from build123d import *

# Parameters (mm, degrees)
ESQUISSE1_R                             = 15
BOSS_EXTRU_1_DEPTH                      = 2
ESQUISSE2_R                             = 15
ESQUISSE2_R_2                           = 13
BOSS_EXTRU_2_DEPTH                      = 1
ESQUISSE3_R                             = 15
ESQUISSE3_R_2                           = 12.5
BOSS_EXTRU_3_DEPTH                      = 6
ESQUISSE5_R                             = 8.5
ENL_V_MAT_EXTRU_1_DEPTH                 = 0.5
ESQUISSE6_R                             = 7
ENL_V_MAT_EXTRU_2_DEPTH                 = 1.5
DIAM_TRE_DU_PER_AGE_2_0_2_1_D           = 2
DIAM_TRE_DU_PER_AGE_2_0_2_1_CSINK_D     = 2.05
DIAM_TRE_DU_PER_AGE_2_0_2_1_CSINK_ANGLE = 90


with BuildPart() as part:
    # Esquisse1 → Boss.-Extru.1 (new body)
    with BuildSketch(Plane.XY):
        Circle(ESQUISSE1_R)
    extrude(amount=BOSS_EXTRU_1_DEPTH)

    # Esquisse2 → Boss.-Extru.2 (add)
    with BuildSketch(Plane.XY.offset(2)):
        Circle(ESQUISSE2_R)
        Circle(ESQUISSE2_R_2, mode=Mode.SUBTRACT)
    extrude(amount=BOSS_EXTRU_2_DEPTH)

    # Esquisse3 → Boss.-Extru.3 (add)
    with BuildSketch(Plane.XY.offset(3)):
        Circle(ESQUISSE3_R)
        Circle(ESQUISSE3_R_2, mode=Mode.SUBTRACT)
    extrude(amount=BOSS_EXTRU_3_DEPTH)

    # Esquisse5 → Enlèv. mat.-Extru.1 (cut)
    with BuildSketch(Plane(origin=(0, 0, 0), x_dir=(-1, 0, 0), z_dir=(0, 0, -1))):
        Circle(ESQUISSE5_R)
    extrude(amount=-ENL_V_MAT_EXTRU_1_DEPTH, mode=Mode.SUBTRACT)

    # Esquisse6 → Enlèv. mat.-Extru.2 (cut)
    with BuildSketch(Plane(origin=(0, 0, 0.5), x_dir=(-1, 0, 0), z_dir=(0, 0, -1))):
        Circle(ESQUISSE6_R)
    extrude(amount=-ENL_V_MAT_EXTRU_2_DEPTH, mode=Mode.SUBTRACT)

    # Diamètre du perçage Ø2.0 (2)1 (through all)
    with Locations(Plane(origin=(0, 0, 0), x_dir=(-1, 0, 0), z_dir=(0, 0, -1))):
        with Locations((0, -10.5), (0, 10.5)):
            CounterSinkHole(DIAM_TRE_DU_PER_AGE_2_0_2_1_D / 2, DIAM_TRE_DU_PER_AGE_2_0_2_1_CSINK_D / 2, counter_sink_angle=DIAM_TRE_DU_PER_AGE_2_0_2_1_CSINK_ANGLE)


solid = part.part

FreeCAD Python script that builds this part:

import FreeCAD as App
import Part
import Sketcher

V = App.Vector
Q = App.Units.Quantity

doc = App.newDocument("Part")
body = doc.addObject("PartDesign::Body", "Body")

sketch1 = doc.addObject("Sketcher::SketchObject", "Sketch")
body.addObject(sketch1)
sketch1.AttachmentSupport = (doc.XY_Plane, [""])
sketch1.MapMode = "FlatFace"
sketch1.addGeometry(Part.Circle(V(0, 0, 0), V(0, 0, 1), 15), False)
sketch1.addConstraint([
    Sketcher.Constraint("Coincident", 0, 3, -1, 1),
    Sketcher.Constraint("Diameter", 0, Q("30 mm")),
])
pad1 = doc.addObject("PartDesign::Pad", "Pad")
body.addObject(pad1)
pad1.Profile = sketch1
pad1.Length = 2

sketch2 = doc.addObject("Sketcher::SketchObject", "Sketch001")
body.addObject(sketch2)
sketch2.AttachmentSupport = (doc.XY_Plane, [""])
sketch2.MapMode = "FlatFace"
sketch2.AttachmentOffset = App.Placement(V(0, 0, 2), App.Rotation())
sketch2.addGeometry([
    Part.Circle(V(0, 0, 0), V(0, 0, 1), 15),
    Part.Circle(V(0, 0, 0), V(0, 0, 1), 13),
], False)
sketch2.addConstraint([
    Sketcher.Constraint("Coincident", 0, 3, -1, 1),
    Sketcher.Constraint("Coincident", 1, 3, -1, 1),
    Sketcher.Constraint("Diameter", 0, Q("30 mm")),
    Sketcher.Constraint("Diameter", 1, Q("26 mm")),
])
pad2 = doc.addObject("PartDesign::Pad", "Pad001")
body.addObject(pad2)
pad2.Profile = sketch2
pad2.Length = 1

sketch3 = doc.addObject("Sketcher::SketchObject", "Sketch002")
body.addObject(sketch3)
sketch3.AttachmentSupport = (doc.XY_Plane, [""])
sketch3.MapMode = "FlatFace"
sketch3.AttachmentOffset = App.Placement(V(0, 0, 3), App.Rotation())
sketch3.addGeometry([
    Part.Circle(V(0, 0, 0), V(0, 0, 1), 15),
    Part.Circle(V(0, 0, 0), V(0, 0, 1), 12),
], False)
sketch3.addConstraint([
    Sketcher.Constraint("Coincident", 0, 3, -1, 1),
    Sketcher.Constraint("Coincident", 1, 3, -1, 1),
    Sketcher.Constraint("Diameter", 0, Q("30 mm")),
    Sketcher.Constraint("Diameter", 1, Q("25 mm")),
])
pad3 = doc.addObject("PartDesign::Pad", "Pad002")
body.addObject(pad3)
pad3.Profile = sketch3
pad3.Length = 6

sketch4 = doc.addObject("Sketcher::SketchObject", "Sketch003")
body.addObject(sketch4)
sketch4.AttachmentSupport = (doc.XY_Plane, [""])
sketch4.MapMode = "FlatFace"
sketch4.addGeometry(Part.Circle(V(0, 0, 0), V(0, 0, 1), 8), False)
sketch4.addConstraint([
    Sketcher.Constraint("Coincident", 0, 3, -1, 1),
    Sketcher.Constraint("Diameter", 0, Q("17 mm")),
])
pocket1 = doc.addObject("PartDesign::Pocket", "Pocket")
body.addObject(pocket1)
pocket1.Profile = sketch4
pocket1.Length = 0.5
pocket1.Reversed = True

sketch5 = doc.addObject("Sketcher::SketchObject", "Sketch004")
body.addObject(sketch5)
sketch5.AttachmentSupport = (doc.XY_Plane, [""])
sketch5.MapMode = "FlatFace"
sketch5.AttachmentOffset = App.Placement(V(0, 0, 0.5), App.Rotation())
sketch5.addGeometry(Part.Circle(V(0, 0, 0), V(0, 0, 1), 7), False)
sketch5.addConstraint([
    Sketcher.Constraint("Coincident", 0, 3, -1, 1),
    Sketcher.Constraint("Diameter", 0, Q("14 mm")),
])
pocket2 = doc.addObject("PartDesign::Pocket", "Pocket001")
body.addObject(pocket2)
pocket2.Profile = sketch5
pocket2.Length = 1.5
pocket2.Reversed = True

sketch6 = doc.addObject("Sketcher::SketchObject", "Sketch005")
body.addObject(sketch6)
sketch6.AttachmentSupport = (doc.XY_Plane, [""])
sketch6.MapMode = "FlatFace"
sketch6.addGeometry([
    Part.Circle(V(0, -10.5, 0), V(0, 0, 1), 1),
    Part.Circle(V(0, 10.5, 0), V(0, 0, 1), 1),
], False)
sketch6.addConstraint([
    Sketcher.Constraint("Equal", 0, 1),
    Sketcher.Constraint("Symmetric", 0, 3, 1, 3, -1, 1),
    Sketcher.Constraint("PointOnObject", 0, 3, -2),
    Sketcher.Constraint("Diameter", 0, Q("2 mm")),
    Sketcher.Constraint("DistanceY", 0, 3, 1, 3, Q("21 mm")),
])
doc.recompute()
hole = doc.addObject("PartDesign::Hole", "Hole")
body.addObject(hole)
hole.Profile = sketch6
hole.ThreadType = "None"
hole.Diameter = 2
hole.DepthType = "ThroughAll"
hole.HoleCutType = "Countersink"
hole.HoleCutDiameter = 2.05
hole.HoleCutCountersinkAngle = 90
hole.Reversed = True

doc.recompute()
